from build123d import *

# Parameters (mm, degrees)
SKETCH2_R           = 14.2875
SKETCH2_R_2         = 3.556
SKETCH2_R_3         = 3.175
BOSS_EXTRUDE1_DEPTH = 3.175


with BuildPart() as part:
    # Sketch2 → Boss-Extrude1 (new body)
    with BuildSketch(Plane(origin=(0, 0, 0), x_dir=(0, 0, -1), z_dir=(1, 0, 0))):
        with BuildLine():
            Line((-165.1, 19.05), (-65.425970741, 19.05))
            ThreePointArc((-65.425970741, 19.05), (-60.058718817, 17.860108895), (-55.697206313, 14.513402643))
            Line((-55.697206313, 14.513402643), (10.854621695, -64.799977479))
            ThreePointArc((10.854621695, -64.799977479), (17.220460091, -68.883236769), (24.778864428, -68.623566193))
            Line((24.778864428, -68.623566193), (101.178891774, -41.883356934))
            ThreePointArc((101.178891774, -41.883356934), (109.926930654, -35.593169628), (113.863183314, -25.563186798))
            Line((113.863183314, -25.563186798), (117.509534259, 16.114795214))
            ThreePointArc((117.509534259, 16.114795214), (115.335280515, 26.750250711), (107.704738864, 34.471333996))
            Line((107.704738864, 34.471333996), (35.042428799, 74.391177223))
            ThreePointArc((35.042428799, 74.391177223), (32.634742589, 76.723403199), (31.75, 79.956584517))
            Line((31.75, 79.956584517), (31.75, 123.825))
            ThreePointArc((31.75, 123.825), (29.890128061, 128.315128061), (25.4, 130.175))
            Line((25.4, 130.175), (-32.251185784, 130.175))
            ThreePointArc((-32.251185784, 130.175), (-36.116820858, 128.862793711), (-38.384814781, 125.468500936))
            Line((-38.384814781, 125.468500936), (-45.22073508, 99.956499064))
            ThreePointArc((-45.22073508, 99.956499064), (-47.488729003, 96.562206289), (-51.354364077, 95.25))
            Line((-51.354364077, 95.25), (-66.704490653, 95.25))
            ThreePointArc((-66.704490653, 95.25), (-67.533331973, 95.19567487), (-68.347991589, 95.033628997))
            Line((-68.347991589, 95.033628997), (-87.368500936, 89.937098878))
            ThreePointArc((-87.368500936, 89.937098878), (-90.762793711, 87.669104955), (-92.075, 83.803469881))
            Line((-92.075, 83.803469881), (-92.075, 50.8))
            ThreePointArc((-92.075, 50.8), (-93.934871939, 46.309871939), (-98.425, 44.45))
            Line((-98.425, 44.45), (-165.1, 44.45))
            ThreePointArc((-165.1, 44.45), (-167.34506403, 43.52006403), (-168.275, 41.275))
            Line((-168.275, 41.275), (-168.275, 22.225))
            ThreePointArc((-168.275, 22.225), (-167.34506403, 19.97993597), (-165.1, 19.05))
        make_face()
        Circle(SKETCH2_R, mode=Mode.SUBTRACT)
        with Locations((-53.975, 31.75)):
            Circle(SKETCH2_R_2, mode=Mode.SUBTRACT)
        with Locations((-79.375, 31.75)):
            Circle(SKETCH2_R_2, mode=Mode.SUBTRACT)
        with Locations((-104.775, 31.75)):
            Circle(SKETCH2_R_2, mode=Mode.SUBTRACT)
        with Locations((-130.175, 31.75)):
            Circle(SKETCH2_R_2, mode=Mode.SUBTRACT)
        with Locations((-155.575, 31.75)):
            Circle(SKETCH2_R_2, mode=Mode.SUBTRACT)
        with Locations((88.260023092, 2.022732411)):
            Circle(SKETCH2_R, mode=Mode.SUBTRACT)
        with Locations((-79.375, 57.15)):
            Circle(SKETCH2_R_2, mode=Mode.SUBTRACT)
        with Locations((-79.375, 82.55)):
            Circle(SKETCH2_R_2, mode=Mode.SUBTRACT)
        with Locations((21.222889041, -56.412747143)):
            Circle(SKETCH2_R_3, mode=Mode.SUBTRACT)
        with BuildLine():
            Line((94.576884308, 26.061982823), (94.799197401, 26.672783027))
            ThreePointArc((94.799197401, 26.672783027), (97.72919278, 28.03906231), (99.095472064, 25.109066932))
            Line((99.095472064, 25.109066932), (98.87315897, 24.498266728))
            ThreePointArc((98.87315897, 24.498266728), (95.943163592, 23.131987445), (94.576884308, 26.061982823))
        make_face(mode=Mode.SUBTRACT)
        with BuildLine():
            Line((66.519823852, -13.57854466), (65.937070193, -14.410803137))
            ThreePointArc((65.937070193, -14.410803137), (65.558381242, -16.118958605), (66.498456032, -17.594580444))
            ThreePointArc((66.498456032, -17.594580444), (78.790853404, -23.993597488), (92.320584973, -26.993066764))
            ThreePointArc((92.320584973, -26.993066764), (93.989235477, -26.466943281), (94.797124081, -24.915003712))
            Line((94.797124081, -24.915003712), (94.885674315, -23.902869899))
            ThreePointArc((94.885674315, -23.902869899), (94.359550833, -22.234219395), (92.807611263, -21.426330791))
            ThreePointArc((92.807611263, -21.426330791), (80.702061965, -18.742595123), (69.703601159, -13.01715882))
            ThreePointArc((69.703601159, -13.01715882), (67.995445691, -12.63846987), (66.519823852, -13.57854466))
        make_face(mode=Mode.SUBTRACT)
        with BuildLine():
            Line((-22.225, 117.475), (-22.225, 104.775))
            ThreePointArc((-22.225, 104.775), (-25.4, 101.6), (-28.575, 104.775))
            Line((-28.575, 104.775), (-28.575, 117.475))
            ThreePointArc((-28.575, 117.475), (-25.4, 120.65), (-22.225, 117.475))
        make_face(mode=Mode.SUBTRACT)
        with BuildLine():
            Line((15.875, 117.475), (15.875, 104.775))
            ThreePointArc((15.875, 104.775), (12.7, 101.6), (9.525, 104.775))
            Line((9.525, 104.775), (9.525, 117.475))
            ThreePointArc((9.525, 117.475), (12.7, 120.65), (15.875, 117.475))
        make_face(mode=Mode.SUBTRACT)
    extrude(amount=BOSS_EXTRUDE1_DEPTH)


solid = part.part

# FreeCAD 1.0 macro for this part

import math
import FreeCAD as App
import Part
import Sketcher

V = App.Vector
Q = App.Units.Quantity

doc = App.newDocument("Part")
body = doc.addObject("PartDesign::Body", "Body")

sketch1 = body.newObject("Sketcher::SketchObject", "Sketch")
sketch1.AttachmentSupport = (doc.getObject("YZ_Plane"), [""])
sketch1.MapMode = "FlatFace"
sketch1.addGeometry(Part.LineSegment(V(19.05, 165.1, 0), V(19.05, 65.425971, 0)), False)
sketch1.addGeometry(Part.ArcOfCircle(Part.Circle(V(6.35, 65.425971, 0), V(0, 0, 1), 12.7), math.radians(-50), math.radians(0)), False)
sketch1.addGeometry(Part.LineSegment(V(14.513403, 55.697206, 0), V(-64.799977, -10.854622, 0)), False)
sketch1.addGeometry(Part.ArcOfCircle(Part.Circle(V(-56.636575, -20.583386, 0), V(0, 0, 1), 12.7), math.radians(130), math.radians(199.29018)), False)
sketch1.addGeometry(Part.LineSegment(V(-68.623566, -24.778864, 0), V(-41.883357, -101.178892, 0)), False)
sketch1.addGeometry(Part.ArcOfCircle(Part.Circle(V(-23.90287, -94.885674, 0), V(0, 0, 1), 19.05), math.radians(-160.70982), math.radians(-95)), False)
sketch1.addGeometry(Part.LineSegment(V(-25.563187, -113.863183, 0), V(16.114795, -117.509534, 0)), False)
sketch1.addGeometry(Part.ArcOfCircle(Part.Circle(V(17.775112, -98.532025, 0), V(0, 0, 1), 19.05), math.radians(-95), math.radians(-28.783891)), False)
sketch1.addGeometry(Part.LineSegment(V(34.471334, -107.704739, 0), V(74.391177, -35.042429, 0)), False)
sketch1.addGeometry(Part.ArcOfCircle(Part.Circle(V(79.956585, -38.1, 0), V(0, 0, 1), 6.35), math.radians(90), math.radians(151.216109)), False)
sketch1.addGeometry(Part.LineSegment(V(79.956585, -31.75, 0), V(123.825, -31.75, 0)), False)
sketch1.addGeometry(Part.ArcOfCircle(Part.Circle(V(123.825, -25.4, 0), V(0, 0, 1), 6.35), math.radians(-90), math.radians(0)), False)
sketch1.addGeometry(Part.LineSegment(V(130.175, -25.4, 0), V(130.175, 32.251186, 0)), False)
sketch1.addGeometry(Part.ArcOfCircle(Part.Circle(V(123.825, 32.251186, 0), V(0, 0, 1), 6.35), math.radians(0), math.radians(75)), False)
sketch1.addGeometry(Part.LineSegment(V(125.468501, 38.384815, 0), V(99.956499, 45.220735, 0)), False)
sketch1.addGeometry(Part.ArcOfCircle(Part.Circle(V(101.6, 51.354364, 0), V(0, 0, 1), 6.35), math.radians(180), math.radians(255)), False)
sketch1.addGeometry(Part.LineSegment(V(95.25, 51.354364, 0), V(95.25, 66.704491, 0)), False)
sketch1.addGeometry(Part.ArcOfCircle(Part.Circle(V(88.9, 66.704491, 0), V(0, 0, 1), 6.35), math.radians(0), math.radians(15)), False)
sketch1.addGeometry(Part.LineSegment(V(95.033629, 68.347992, 0), V(89.937099, 87.368501, 0)), False)
sketch1.addGeometry(Part.ArcOfCircle(Part.Circle(V(83.80347, 85.725, 0), V(0, 0, 1), 6.35), math.radians(15), math.radians(90)), False)
sketch1.addGeometry(Part.LineSegment(V(83.80347, 92.075, 0), V(50.8, 92.075, 0)), False)
sketch1.addGeometry(Part.ArcOfCircle(Part.Circle(V(50.8, 98.425, 0), V(0, 0, 1), 6.35), math.radians(180), math.radians(270)), False)
sketch1.addGeometry(Part.LineSegment(V(44.45, 98.425, 0), V(44.45, 165.1, 0)), False)
sketch1.addGeometry(Part.ArcOfCircle(Part.Circle(V(41.275, 165.1, 0), V(0, 0, 1), 3.175), math.radians(0), math.radians(90)), False)
sketch1.addGeometry(Part.LineSegment(V(41.275, 168.275, 0), V(22.225, 168.275, 0)), False)
sketch1.addGeometry(Part.ArcOfCircle(Part.Circle(V(22.225, 165.1, 0), V(0, 0, 1), 3.175), math.radians(90), math.radians(180)), False)
sketch1.addGeometry(Part.Circle(V(-56.412747, -21.222889, 0), V(0, 0, 1), 3.175), False)
sketch1.addGeometry(Part.LineSegment(V(-14.410803, -65.93707, 0), V(-13.578545, -66.519824, 0)), False)
sketch1.addGeometry(Part.ArcOfCircle(Part.Circle(V(-14.88974, -68.392405, 0), V(0, 0, 1), 2.286), math.radians(-35), math.radians(55)), False)
sketch1.addGeometry(Part.ArcOfCircle(Part.Circle(V(25.890925, -96.947335, 0), V(0, 0, 1), 47.498), math.radians(145), math.radians(175)), False)
sketch1.addGeometry(Part.ArcOfCircle(Part.Circle(V(-23.703632, -92.608373, 0), V(0, 0, 1), 2.286), math.radians(-95), math.radians(-5)), False)
sketch1.addGeometry(Part.LineSegment(V(-23.90287, -94.885674, 0), V(-24.915004, -94.797124, 0)), False)
sketch1.addGeometry(Part.ArcOfCircle(Part.Circle(V(-24.715766, -92.519823, 0), V(0, 0, 1), 2.286), math.radians(175), math.radians(265)), False)
sketch1.addGeometry(Part.ArcOfCircle(Part.Circle(V(25.890925, -96.947335, 0), V(0, 0, 1), 53.086), math.radians(145), math.radians(175)), False)
sketch1.addGeometry(Part.ArcOfCircle(Part.Circle(V(-15.721999, -67.809652, 0), V(0, 0, 1), 2.286), math.radians(55), math.radians(145)), False)
sketch1.addGeometry(Part.Circle(V(0, 0, 0), V(0, 0, 1), 14.2875), False)
sketch1.addGeometry(Part.Circle(V(2.022732, -88.260023, 0), V(0, 0, 1), 14.2875), False)
sketch1.addGeometry(Part.ArcOfCircle(Part.Circle(V(25.280125, -96.725022, 0), V(0, 0, 1), 2.286), math.radians(70), math.radians(250)), False)
sketch1.addGeometry(Part.LineSegment(V(26.061983, -94.576884, 0), V(26.672783, -94.799197, 0)), False)
sketch1.addGeometry(Part.ArcOfCircle(Part.Circle(V(25.890925, -96.947335, 0), V(0, 0, 1), 2.286), math.radians(-110), math.radians(70)), False)
sketch1.addGeometry(Part.LineSegment(V(25.109067, -99.095472, 0), V(24.498267, -98.873159, 0)), False)
sketch1.addGeometry(Part.Circle(V(31.75, 155.575, 0), V(0, 0, 1), 3.556), False)
sketch1.addGeometry(Part.Circle(V(31.75, 130.175, 0), V(0, 0, 1), 3.556), False)
sketch1.addGeometry(Part.Circle(V(31.75, 104.775, 0), V(0, 0, 1), 3.556), False)
sketch1.addGeometry(Part.Circle(V(31.75, 79.375, 0), V(0, 0, 1), 3.556), False)
sketch1.addGeometry(Part.Circle(V(31.75, 53.975, 0), V(0, 0, 1), 3.556), False)
sketch1.addGeometry(Part.Circle(V(57.15, 79.375, 0), V(0, 0, 1), 3.556), False)
sketch1.addGeometry(Part.Circle(V(82.55, 79.375, 0), V(0, 0, 1), 3.556), False)
sketch1.addGeometry(Part.ArcOfCircle(Part.Circle(V(117.475, 25.4, 0), V(0, 0, 1), 3.175), math.radians(-90), math.radians(90)), False)
sketch1.addGeometry(Part.LineSegment(V(117.475, 22.225, 0), V(104.775, 22.225, 0)), False)
sketch1.addGeometry(Part.ArcOfCircle(Part.Circle(V(104.775, 25.4, 0), V(0, 0, 1), 3.175), math.radians(90), math.radians(270)), False)
sketch1.addGeometry(Part.LineSegment(V(104.775, 28.575, 0), V(117.475, 28.575, 0)), False)
sketch1.addGeometry(Part.ArcOfCircle(Part.Circle(V(117.475, -12.7, 0), V(0, 0, 1), 3.175), math.radians(-90), math.radians(90)), False)
sketch1.addGeometry(Part.LineSegment(V(117.475, -15.875, 0), V(104.775, -15.875, 0)), False)
sketch1.addGeometry(Part.ArcOfCircle(Part.Circle(V(104.775, -12.7, 0), V(0, 0, 1), 3.175), math.radians(90), math.radians(270)), False)
sketch1.addGeometry(Part.LineSegment(V(104.775, -9.525, 0), V(117.475, -9.525, 0)), False)
sketch1.addConstraint(Sketcher.Constraint("Coincident", 0, 2, 1, 2))
sketch1.addConstraint(Sketcher.Constraint("Coincident", 1, 1, 2, 1))
sketch1.addConstraint(Sketcher.Constraint("Coincident", 2, 2, 3, 1))
sketch1.addConstraint(Sketcher.Constraint("Coincident", 3, 2, 4, 1))
sketch1.addConstraint(Sketcher.Constraint("Coincident", 4, 2, 5, 1))
sketch1.addConstraint(Sketcher.Constraint("Coincident", 5, 2, 6, 1))
sketch1.addConstraint(Sketcher.Constraint("Coincident", 6, 2, 7, 1))
sketch1.addConstraint(Sketcher.Constraint("Coincident", 7, 2, 8, 1))
sketch1.addConstraint(Sketcher.Constraint("Coincident", 8, 2, 9, 2))
sketch1.addConstraint(Sketcher.Constraint("Coincident", 9, 1, 10, 1))
sketch1.addConstraint(Sketcher.Constraint("Coincident", 10, 2, 11, 1))
sketch1.addConstraint(Sketcher.Constraint("Coincident", 11, 2, 12, 1))
sketch1.addConstraint(Sketcher.Constraint("Coincident", 12, 2, 13, 1))
sketch1.addConstraint(Sketcher.Constraint("Coincident", 13, 2, 14, 1))
sketch1.addConstraint(Sketcher.Constraint("Coincident", 14, 2, 15, 2))
sketch1.addConstraint(Sketcher.Constraint("Coincident", 15, 1, 16, 1))
sketch1.addConstraint(Sketcher.Constraint("Coincident", 16, 2, 17, 1))
sketch1.addConstraint(Sketcher.Constraint("Coincident", 17, 2, 18, 1))
sketch1.addConstraint(Sketcher.Constraint("Coincident", 18, 2, 19, 1))
sketch1.addConstraint(Sketcher.Constraint("Coincident", 19, 2, 20, 1))
sketch1.addConstraint(Sketcher.Constraint("Coincident", 20, 2, 21, 2))
sketch1.addConstraint(Sketcher.Constraint("Coincident", 21, 1, 22, 1))
sketch1.addConstraint(Sketcher.Constraint("Coincident", 22, 2, 23, 1))
sketch1.addConstraint(Sketcher.Constraint("Coincident", 23, 2, 24, 1))
sketch1.addConstraint(Sketcher.Constraint("Coincident", 24, 2, 25, 1))
sketch1.addConstraint(Sketcher.Constraint("Coincident", 25, 2, 0, 1))
sketch1.addConstraint(Sketcher.Constraint("Coincident", 27, 2, 28, 2))
sketch1.addConstraint(Sketcher.Constraint("Coincident", 28, 1, 29, 1))
sketch1.addConstraint(Sketcher.Constraint("Coincident", 29, 2, 30, 2))
sketch1.addConstraint(Sketcher.Constraint("Coincident", 30, 1, 31, 1))
sketch1.addConstraint(Sketcher.Constraint("Coincident", 31, 2, 32, 2))
sketch1.addConstraint(Sketcher.Constraint("Coincident", 32, 1, 33, 2))
sketch1.addConstraint(Sketcher.Constraint("Coincident", 33, 1, 34, 2))
sketch1.addConstraint(Sketcher.Constraint("Coincident", 34, 1, 27, 1))
sketch1.addConstraint(Sketcher.Constraint("Coincident", 37, 1, 38, 1))
sketch1.addConstraint(Sketcher.Constraint("Coincident", 38, 2, 39, 2))
sketch1.addConstraint(Sketcher.Constraint("Coincident", 39, 1, 40, 1))
sketch1.addConstraint(Sketcher.Constraint("Coincident", 40, 2, 37, 2))
sketch1.addConstraint(Sketcher.Constraint("Coincident", 48, 1, 49, 1))
sketch1.addConstraint(Sketcher.Constraint("Coincident", 49, 2, 50, 2))
sketch1.addConstraint(Sketcher.Constraint("Coincident", 50, 1, 51, 1))
sketch1.addConstraint(Sketcher.Constraint("Coincident", 51, 2, 48, 2))
sketch1.addConstraint(Sketcher.Constraint("Coincident", 52, 1, 53, 1))
sketch1.addConstraint(Sketcher.Constraint("Coincident", 53, 2, 54, 2))
sketch1.addConstraint(Sketcher.Constraint("Coincident", 54, 1, 55, 1))
sketch1.addConstraint(Sketcher.Constraint("Coincident", 55, 2, 52, 2))
sketch1.addConstraint(Sketcher.Constraint("Vertical", 0))
sketch1.addConstraint(Sketcher.Constraint("Horizontal", 10))
sketch1.addConstraint(Sketcher.Constraint("Vertical", 12))
sketch1.addConstraint(Sketcher.Constraint("Vertical", 16))
sketch1.addConstraint(Sketcher.Constraint("Horizontal", 20))
sketch1.addConstraint(Sketcher.Constraint("Vertical", 22))
sketch1.addConstraint(Sketcher.Constraint("Horizontal", 24))
sketch1.addConstraint(Sketcher.Constraint("Horizontal", 49))
sketch1.addConstraint(Sketcher.Constraint("Horizontal", 51))
sketch1.addConstraint(Sketcher.Constraint("Horizontal", 53))
sketch1.addConstraint(Sketcher.Constraint("Horizontal", 55))
sketch1.addConstraint(Sketcher.Constraint("Coincident", 35, 3, -1, 1))
sketch1.addConstraint(Sketcher.Constraint("Coincident", 33, 3, 29, 3))
sketch1.addConstraint(Sketcher.Constraint("Coincident", 39, 3, 29, 3))
sketch1.addConstraint(Sketcher.Constraint("Coincident", 30, 1, 5, 3))
sketch1.addConstraint(Sketcher.Constraint("Radius", 1, Q("0.5 in")))
sketch1.addConstraint(Sketcher.Constraint("Radius", 3, Q("0.5 in")))
sketch1.addConstraint(Sketcher.Constraint("Diameter", 26, Q("0.25 in")))
sketch1.addConstraint(Sketcher.Constraint("Diameter", 41, Q("0.28 in")))
sketch1.addConstraint(Sketcher.Constraint("Diameter", 42, Q("0.28 in")))
sketch1.addConstraint(Sketcher.Constraint("Diameter", 43, Q("0.28 in")))
sketch1.addConstraint(Sketcher.Constraint("Diameter", 44, Q("0.28 in")))
sketch1.addConstraint(Sketcher.Constraint("Diameter", 45, Q("0.28 in")))
sketch1.addConstraint(Sketcher.Constraint("Diameter", 46, Q("0.28 in")))
sketch1.addConstraint(Sketcher.Constraint("Diameter", 47, Q("0.28 in")))
sketch1.addConstraint(Sketcher.Constraint("Radius", 5, Q("0.75 in")))
sketch1.addConstraint(Sketcher.Constraint("Radius", 7, Q("0.75 in")))
sketch1.addConstraint(Sketcher.Constraint("Radius", 9, Q("0.25 in")))
sketch1.addConstraint(Sketcher.Constraint("Radius", 11, Q("0.25 in")))
sketch1.addConstraint(Sketcher.Constraint("Radius", 13, Q("0.25 in")))
sketch1.addConstraint(Sketcher.Constraint("Radius", 15, Q("0.25 in")))
sketch1.addConstraint(Sketcher.Constraint("Radius", 17, Q("0.25 in")))
sketch1.addConstraint(Sketcher.Constraint("Radius", 19, Q("0.25 in")))
sketch1.addConstraint(Sketcher.Constraint("Radius", 21, Q("0.25 in")))
sketch1.addConstraint(Sketcher.Constraint("Radius", 28, Q("0.09 in")))
sketch1.addConstraint(Sketcher.Constraint("Radius", 29, Q("1.87 in")))
sketch1.addConstraint(Sketcher.Constraint("Radius", 30, Q("0.09 in")))
sketch1.addConstraint(Sketcher.Constraint("Radius", 32, Q("0.09 in")))
sketch1.addConstraint(Sketcher.Constraint("Radius", 33, Q("2.09 in")))
sketch1.addConstraint(Sketcher.Constraint("Radius", 34, Q("0.09 in")))
sketch1.addConstraint(Sketcher.Constraint("Radius", 37, Q("0.09 in")))
sketch1.addConstraint(Sketcher.Constraint("Radius", 39, Q("0.09 in")))
sketch1.addConstraint(Sketcher.Constraint("Diameter", 35, Q("1.125 in")))
sketch1.addConstraint(Sketcher.Constraint("Diameter", 36, Q("1.125 in")))
sketch1.addConstraint(Sketcher.Constraint("DistanceX", 49, 2, 49, 1, Q("0.5 in")))
sketch1.addConstraint(Sketcher.Constraint("DistanceX", 51, 1, 51, 2, Q("0.5 in")))
sketch1.addConstraint(Sketcher.Constraint("DistanceX", 53, 2, 53, 1, Q("0.5 in")))
sketch1.addConstraint(Sketcher.Constraint("DistanceX", 55, 1, 55, 2, Q("0.5 in")))
sketch1.addConstraint(Sketcher.Constraint("DistanceY", 11, 3, -1, 1, Q("1 in")))
sketch1.addConstraint(Sketcher.Constraint("DistanceX", -1, 1, 15, 3, Q("4 in")))
sketch1.addConstraint(Sketcher.Constraint("DistanceX", -1, 1, 21, 3, Q("2 in")))
sketch1.addConstraint(Sketcher.Constraint("DistanceY", -1, 1, 48, 3, Q("1 in")))
sketch1.addConstraint(Sketcher.Constraint("DistanceY", 11, 2, -1, 1, Q("1 in")))
sketch1.addConstraint(Sketcher.Constraint("DistanceX", -1, 1, 20, 2, Q("2 in")))
sketch1.addConstraint(Sketcher.Constraint("Radius", 23, Q("0.125 in")))
sketch1.addConstraint(Sketcher.Constraint("Radius", 25, Q("0.125 in")))
sketch1.addConstraint(Sketcher.Constraint("Radius", 48, Q("0.125 in")))
sketch1.addConstraint(Sketcher.Constraint("Radius", 52, Q("0.125 in")))
sketch1.addConstraint(Sketcher.Constraint("DistanceX", 24, 2, 24, 1, Q("0.75 in")))
sketch1.addConstraint(Sketcher.Constraint("DistanceY", -1, 1, 23, 3, Q("6.5 in")))
sketch1.addConstraint(Sketcher.Constraint("DistanceY", 52, 3, -1, 1, Q("0.5 in")))
sketch1.addConstraint(Sketcher.Constraint("DistanceY", -1, 1, 22, 2, Q("6.5 in")))
sketch1.addConstraint(Sketcher.Constraint("DistanceY", -1, 1, 25, 2, Q("6.5 in")))
sketch1.addConstraint(Sketcher.Constraint("Distance", 27, Q("0.04 in")))
sketch1.addConstraint(Sketcher.Constraint("Distance", 31, Q("0.04 in")))
sketch1.addConstraint(Sketcher.Constraint("DistanceY", 22, 1, 22, 2, Q("2.625 in")))
sketch1.addConstraint(Sketcher.Constraint("DistanceX", -1, 1, 1, 3, Q("0.25 in")))
sketch1.addConstraint(Sketcher.Constraint("DistanceX", -1, 1, 41, 3, Q("1.25 in")))
sketch1.addConstraint(Sketcher.Constraint("DistanceX", -1, 1, 42, 3, Q("1.25 in")))
sketch1.addConstraint(Sketcher.Constraint("DistanceX", -1, 1, 43, 3, Q("1.25 in")))
sketch1.addConstraint(Sketcher.Constraint("DistanceX", -1, 1, 44, 3, Q("1.25 in")))
sketch1.addConstraint(Sketcher.Constraint("DistanceX", -1, 1, 45, 3, Q("1.25 in")))
sketch1.addConstraint(Sketcher.Constraint("DistanceX", -1, 1, 46, 3, Q("2.25 in")))
sketch1.addConstraint(Sketcher.Constraint("DistanceX", -1, 1, 47, 3, Q("3.25 in")))
sketch1.addConstraint(Sketcher.Constraint("DistanceX", -1, 1, 11, 3, Q("4.875 in")))
sketch1.addConstraint(Sketcher.Constraint("DistanceY", -1, 1, 19, 3, Q("3.375 in")))
sketch1.addConstraint(Sketcher.Constraint("DistanceY", -1, 1, 41, 3, Q("6.125 in")))
sketch1.addConstraint(Sketcher.Constraint("DistanceY", -1, 1, 42, 3, Q("5.125 in")))
sketch1.addConstraint(Sketcher.Constraint("DistanceY", -1, 1, 43, 3, Q("4.125 in")))
sketch1.addConstraint(Sketcher.Constraint("DistanceY", -1, 1, 44, 3, Q("3.125 in")))
sketch1.addConstraint(Sketcher.Constraint("DistanceY", -1, 1, 45, 3, Q("2.125 in")))
sketch1.addConstraint(Sketcher.Constraint("DistanceY", -1, 1, 46, 3, Q("3.125 in")))
sketch1.addConstraint(Sketcher.Constraint("DistanceY", -1, 1, 47, 3, Q("3.125 in")))
sketch1.addConstraint(Sketcher.Constraint("DistanceX", -1, 1, 48, 3, Q("4.625 in")))
sketch1.addConstraint(Sketcher.Constraint("DistanceX", -1, 1, 50, 3, Q("4.125 in")))
sketch1.addConstraint(Sketcher.Constraint("DistanceX", -1, 1, 52, 3, Q("4.625 in")))
sketch1.addConstraint(Sketcher.Constraint("DistanceX", -1, 1, 54, 3, Q("4.125 in")))
sketch1.addConstraint(Sketcher.Constraint("DistanceX", -1, 1, 10, 2, Q("4.875 in")))
sketch1.addConstraint(Sketcher.Constraint("DistanceX", -1, 1, 23, 2, Q("1.625 in")))
sketch1.addConstraint(Sketcher.Constraint("DistanceX", -1, 1, 48, 1, Q("4.625 in")))
sketch1.addConstraint(Sketcher.Constraint("DistanceX", -1, 1, 50, 1, Q("4.125 in")))
sketch1.addConstraint(Sketcher.Constraint("DistanceX", -1, 1, 52, 1, Q("4.625 in")))
sketch1.addConstraint(Sketcher.Constraint("DistanceX", -1, 1, 54, 1, Q("4.125 in")))
sketch1.addConstraint(Sketcher.Constraint("DistanceX", 33, 1, -1, 1, Q("0.6927 in")))
sketch1.addConstraint(Sketcher.Constraint("Distance", 38, 0.65))
sketch1.addConstraint(Sketcher.Constraint("Distance", 40, 0.65))
sketch1.addConstraint(Sketcher.Constraint("DistanceX", 20, 2, 20, 1, 33.00347))
sketch1.addConstraint(Sketcher.Constraint("DistanceY", 0, 2, 0, 1, 99.674029))
sketch1.addConstraint(Sketcher.Constraint("DistanceX", 34, 3, -1, 1, 15.721999))
sketch1.addConstraint(Sketcher.Constraint("DistanceX", -1, 1, 13, 2, 125.468501))
sketch1.addConstraint(Sketcher.Constraint("DistanceX", -1, 1, 14, 2, 99.956499))
sketch1.addConstraint(Sketcher.Constraint("DistanceX", -1, 1, 18, 2, 89.937099))
sketch1.addConstraint(Sketcher.Constraint("DistanceY", -1, 1, 18, 2, 87.368501))
sketch1.addConstraint(Sketcher.Constraint("DistanceY", 28, 1, -1, 1, 69.703601))
sketch1.addConstraint(Sketcher.Constraint("Distance", 18, 19.69148))
sketch1.addConstraint(Sketcher.Constraint("DistanceX", 10, 1, 10, 2, 43.868415))
sketch1.addConstraint(Sketcher.Constraint("DistanceY", 12, 1, 12, 2, 57.651186))
sketch1.addConstraint(Sketcher.Constraint("DistanceY", 16, 1, 16, 2, 15.350127))
sketch1.addConstraint(Sketcher.Constraint("DistanceY", -1, 1, 1, 3, 65.425971))
sketch1.addConstraint(Sketcher.Constraint("DistanceX", 5, 3, -1, 1, 23.90287))
sketch1.addConstraint(Sketcher.Constraint("DistanceY", -1, 1, 17, 3, 66.704491))
sketch1.addConstraint(Sketcher.Constraint("DistanceY", 26, 3, -1, 1, 21.222889))
sketch1.addConstraint(Sketcher.Constraint("DistanceX", 28, 3, -1, 1, 14.88974))
sketch1.addConstraint(Sketcher.Constraint("DistanceX", 30, 3, -1, 1, 23.703632))
sketch1.addConstraint(Sketcher.Constraint("DistanceY", 34, 3, -1, 1, 67.809652))
sketch1.addConstraint(Sketcher.Constraint("DistanceY", 37, 3, -1, 1, 96.725022))
sketch1.addConstraint(Sketcher.Constraint("DistanceY", 2, 2, -1, 1, 10.854622))
sketch1.addConstraint(Sketcher.Constraint("DistanceY", 4, 2, -1, 1, 101.178892))
sketch1.addConstraint(Sketcher.Constraint("DistanceY", 7, 2, -1, 1, 107.704739))
sketch1.addConstraint(Sketcher.Constraint("DistanceY", 8, 2, -1, 1, 35.042429))
sketch1.addConstraint(Sketcher.Constraint("DistanceY", -1, 1, 16, 2, 66.704491))
sketch1.addConstraint(Sketcher.Constraint("DistanceX", 29, 2, -1, 1, 21.426331))
sketch1.addConstraint(Sketcher.Constraint("DistanceY", 29, 2, -1, 1, 92.807611))
sketch1.addConstraint(Sketcher.Constraint("DistanceY", 34, 1, -1, 1, 65.93707))
sketch1.addConstraint(Sketcher.Constraint("DistanceY", 40, 2, -1, 1, 98.873159))
sketch1.addConstraint(Sketcher.Constraint("Distance", 2, 103.536265))
sketch1.addConstraint(Sketcher.Constraint("Distance", 4, 80.944444))
sketch1.addConstraint(Sketcher.Constraint("Distance", 6, 41.837185))
sketch1.addConstraint(Sketcher.Constraint("Distance", 8, 82.906002))
sketch1.addConstraint(Sketcher.Constraint("Distance", 14, 26.411968))
sketch1.addConstraint(Sketcher.Constraint("DistanceX", 3, 3, -1, 1, 56.636575))
sketch1.addConstraint(Sketcher.Constraint("DistanceY", 3, 3, -1, 1, 20.583386))
sketch1.addConstraint(Sketcher.Constraint("DistanceX", -1, 1, 7, 3, 17.775112))
sketch1.addConstraint(Sketcher.Constraint("DistanceY", 7, 3, -1, 1, 98.532025))
sketch1.addConstraint(Sketcher.Constraint("DistanceY", -1, 1, 13, 3, 32.251186))
sketch1.addConstraint(Sketcher.Constraint("DistanceX", 26, 3, -1, 1, 56.412747))
sketch1.addConstraint(Sketcher.Constraint("DistanceX", 32, 3, -1, 1, 24.715766))
sketch1.addConstraint(Sketcher.Constraint("DistanceX", -1, 1, 36, 3, 2.022732))
sketch1.addConstraint(Sketcher.Constraint("DistanceY", 36, 3, -1, 1, 88.260023))
sketch1.addConstraint(Sketcher.Constraint("DistanceX", -1, 1, 37, 3, 25.280125))
sketch1.addConstraint(Sketcher.Constraint("DistanceX", 5, 2, -1, 1, 25.563187))
sketch1.addConstraint(Sketcher.Constraint("DistanceX", 32, 1, -1, 1, 26.993067))
sketch1.addConstraint(Sketcher.Constraint("DistanceX", -1, 1, 37, 1, 26.061983))
pad1 = body.newObject("PartDesign::Pad", "Pad")
pad1.Profile = sketch1
pad1.Length = Q("0.125 in")

doc.recompute()
